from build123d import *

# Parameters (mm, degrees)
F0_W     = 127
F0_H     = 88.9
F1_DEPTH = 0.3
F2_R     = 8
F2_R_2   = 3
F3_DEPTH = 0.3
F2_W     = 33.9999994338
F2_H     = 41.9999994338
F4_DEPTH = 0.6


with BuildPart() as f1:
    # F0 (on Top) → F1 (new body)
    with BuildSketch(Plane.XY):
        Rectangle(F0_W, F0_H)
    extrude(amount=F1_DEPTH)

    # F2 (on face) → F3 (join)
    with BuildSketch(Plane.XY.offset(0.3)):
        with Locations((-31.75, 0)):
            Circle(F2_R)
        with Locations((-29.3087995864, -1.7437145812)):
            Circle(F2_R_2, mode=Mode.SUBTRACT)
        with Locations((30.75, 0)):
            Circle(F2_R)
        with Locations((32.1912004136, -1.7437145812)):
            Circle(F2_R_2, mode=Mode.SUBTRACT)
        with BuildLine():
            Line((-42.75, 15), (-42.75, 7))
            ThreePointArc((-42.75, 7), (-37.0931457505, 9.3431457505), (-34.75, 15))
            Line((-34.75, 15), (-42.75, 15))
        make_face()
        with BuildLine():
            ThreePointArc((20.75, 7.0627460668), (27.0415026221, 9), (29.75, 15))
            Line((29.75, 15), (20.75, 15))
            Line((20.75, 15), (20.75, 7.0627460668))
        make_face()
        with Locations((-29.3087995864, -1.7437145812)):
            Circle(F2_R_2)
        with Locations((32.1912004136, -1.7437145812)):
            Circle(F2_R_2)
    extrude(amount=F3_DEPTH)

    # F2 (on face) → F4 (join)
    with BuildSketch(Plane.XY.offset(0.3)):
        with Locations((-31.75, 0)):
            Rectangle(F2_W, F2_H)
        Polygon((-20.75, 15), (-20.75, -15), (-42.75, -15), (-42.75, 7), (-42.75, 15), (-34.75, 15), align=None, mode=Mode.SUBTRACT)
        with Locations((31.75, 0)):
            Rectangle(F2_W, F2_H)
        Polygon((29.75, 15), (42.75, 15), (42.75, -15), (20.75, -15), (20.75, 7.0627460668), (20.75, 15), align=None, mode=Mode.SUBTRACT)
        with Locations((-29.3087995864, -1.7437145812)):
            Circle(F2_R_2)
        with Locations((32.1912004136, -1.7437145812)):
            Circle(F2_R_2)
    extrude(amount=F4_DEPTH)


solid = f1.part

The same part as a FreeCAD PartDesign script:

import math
import FreeCAD as App
import Part
import Sketcher
from FreeCAD import Vector

doc = App.newDocument("Part")
params = doc.addObject("Spreadsheet::Sheet", "Params")
for row, (alias, value) in enumerate([
    ("sketch1_width", "127 mm"),
    ("sketch1_height", "88.9 mm"),
    ("pad1_length", "0.3 mm"),
    ("sketch2_diameter", "16 mm"),
    ("sketch2_width", "9 mm"),
    ("pad2_length", "0.3 mm"),
    ("sketch3_diameter", "6 mm"),
    ("sketch3_width", "33.999999 mm"),
    ("sketch3_width2", "22 mm"),
    ("sketch3_height", "41.999999 mm"),
    ("sketch3_height2", "30 mm"),
    ("pad3_length", "0.6 mm"),
], start=1):
    params.set(f"A{row}", alias)
    params.set(f"B{row}", "=" + value)
    params.setAlias(f"B{row}", alias)

body = doc.addObject("PartDesign::Body", "Body")

sketch1 = doc.addObject("Sketcher::SketchObject", "Sketch")
body.addObject(sketch1)
sketch1.AttachmentSupport = (doc.XY_Plane, [""])
sketch1.MapMode = "FlatFace"
sketch1.addGeometry(Part.LineSegment(Vector(-63.5, 44.45, 0), Vector(-63.5, -44.45, 0)), False)
sketch1.addGeometry(Part.LineSegment(Vector(-63.5, -44.45, 0), Vector(63.5, -44.45, 0)), False)
sketch1.addGeometry(Part.LineSegment(Vector(63.5, -44.45, 0), Vector(63.5, 44.45, 0)), False)
sketch1.addGeometry(Part.LineSegment(Vector(63.5, 44.45, 0), Vector(-63.5, 44.45, 0)), False)
sketch1.addConstraint(Sketcher.Constraint("Coincident", 0, 2, 1, 1))
sketch1.addConstraint(Sketcher.Constraint("Coincident", 1, 2, 2, 1))
sketch1.addConstraint(Sketcher.Constraint("Coincident", 2, 2, 3, 1))
sketch1.addConstraint(Sketcher.Constraint("Coincident", 3, 2, 0, 1))
sketch1.addConstraint(Sketcher.Constraint("Vertical", 0))
sketch1.addConstraint(Sketcher.Constraint("Horizontal", 1))
sketch1.addConstraint(Sketcher.Constraint("Vertical", 2))
sketch1.addConstraint(Sketcher.Constraint("Horizontal", 3))
sketch1.addConstraint(Sketcher.Constraint("Symmetric", 0, 2, 2, 2, -1, 1))
sketch1.addConstraint(Sketcher.Constraint("DistanceX", 1, 1, 1, 2, 127.0))
sketch1.addConstraint(Sketcher.Constraint("DistanceY", 0, 2, 0, 1, 88.9))
sketch1.setExpression("Constraints[9]", "Params.sketch1_width")
sketch1.setExpression("Constraints[10]", "Params.sketch1_height")
pad1 = doc.addObject("PartDesign::Pad", "Pad")
body.addObject(pad1)
pad1.Profile = sketch1
pad1.setExpression("Length", "Params.pad1_length")

sketch2 = doc.addObject("Sketcher::SketchObject", "Sketch001")
body.addObject(sketch2)
sketch2.AttachmentSupport = (doc.XY_Plane, [""])
sketch2.MapMode = "FlatFace"
sketch2.AttachmentOffset = App.Placement(Vector(0, 0, 0.3), App.Rotation())
sketch2.addGeometry(Part.Circle(Vector(-31.75, 0, 0), Vector(0, 0, 1), 8), False)
sketch2.addGeometry(Part.Circle(Vector(30.75, 0, 0), Vector(0, 0, 1), 8), False)
sketch2.addGeometry(Part.LineSegment(Vector(-42.75, 15, 0), Vector(-42.75, 7, 0)), False)
sketch2.addGeometry(Part.ArcOfCircle(Part.Circle(Vector(-42.75, 15, 0), Vector(0, 0, 1), 8), math.radians(-90), math.radians(0)), False)
sketch2.addGeometry(Part.LineSegment(Vector(-34.75, 15, 0), Vector(-42.75, 15, 0)), False)
sketch2.addGeometry(Part.ArcOfCircle(Part.Circle(Vector(21.75, 15, 0), Vector(0, 0, 1), 8), math.radians(-97.180756), math.radians(0)), False)
sketch2.addGeometry(Part.LineSegment(Vector(29.75, 15, 0), Vector(20.75, 15, 0)), False)
sketch2.addGeometry(Part.LineSegment(Vector(20.75, 15, 0), Vector(20.75, 7.062746, 0)), False)
sketch2.addConstraint(Sketcher.Constraint("Coincident", 2, 2, 3, 1))
sketch2.addConstraint(Sketcher.Constraint("Coincident", 3, 2, 4, 1))
sketch2.addConstraint(Sketcher.Constraint("Coincident", 4, 2, 2, 1))
sketch2.addConstraint(Sketcher.Constraint("Coincident", 5, 2, 6, 1))
sketch2.addConstraint(Sketcher.Constraint("Coincident", 6, 2, 7, 1))
sketch2.addConstraint(Sketcher.Constraint("Coincident", 7, 2, 5, 1))
sketch2.addConstraint(Sketcher.Constraint("Vertical", 2))
sketch2.addConstraint(Sketcher.Constraint("Horizontal", 4))
sketch2.addConstraint(Sketcher.Constraint("Horizontal", 6))
sketch2.addConstraint(Sketcher.Constraint("Vertical", 7))
sketch2.addConstraint(Sketcher.Constraint("Coincident", 4, 2, 3, 3))
sketch2.addConstraint(Sketcher.Constraint("Equal", 0, 1))
sketch2.addConstraint(Sketcher.Constraint("Equal", 1, 3))
sketch2.addConstraint(Sketcher.Constraint("Equal", 3, 5))
sketch2.addConstraint(Sketcher.Constraint("PointOnObject", 0, 3, -1))
sketch2.addConstraint(Sketcher.Constraint("PointOnObject", 1, 3, -1))
sketch2.addConstraint(Sketcher.Constraint("Horizontal", 3, 3, 5, 3))
sketch2.addConstraint(Sketcher.Constraint("Horizontal", 4, 2, 5, 2))
sketch2.addConstraint(Sketcher.Constraint("Diameter", 0, 16.0))
sketch2.addConstraint(Sketcher.Constraint("DistanceX", 6, 2, 6, 1, 9.0))
sketch2.addConstraint(Sketcher.Constraint("DistanceY", -1, 1, 3, 3, 15.0))
sketch2.addConstraint(Sketcher.Constraint("DistanceX", 3, 3, 0, 3, 11.0))
sketch2.addConstraint(Sketcher.Constraint("DistanceX", 5, 3, 1, 3, 9.0))
sketch2.addConstraint(Sketcher.Constraint("DistanceX", 0, 3, 1, 3, 62.5))
sketch2.addConstraint(Sketcher.Constraint("DistanceX", 0, 3, -1, 1, 31.75))
sketch2.setExpression("Constraints[18]", "Params.sketch2_diameter")
sketch2.setExpression("Constraints[19]", "Params.sketch2_width")
pad2 = doc.addObject("PartDesign::Pad", "Pad001")
body.addObject(pad2)
pad2.Profile = sketch2
pad2.setExpression("Length", "Params.pad2_length")

sketch3 = doc.addObject("Sketcher::SketchObject", "Sketch002")
body.addObject(sketch3)
sketch3.AttachmentSupport = (doc.XY_Plane, [""])
sketch3.MapMode = "FlatFace"
sketch3.AttachmentOffset = App.Placement(Vector(0, 0, 0.3), App.Rotation())
sketch3.addGeometry(Part.LineSegment(Vector(-48.75, 21, 0), Vector(-48.75, -21, 0)), False)
sketch3.addGeometry(Part.LineSegment(Vector(-48.75, -21, 0), Vector(-14.75, -21, 0)), False)
sketch3.addGeometry(Part.LineSegment(Vector(-14.75, -21, 0), Vector(-14.75, 21, 0)), False)
sketch3.addGeometry(Part.LineSegment(Vector(-14.75, 21, 0), Vector(-48.75, 21, 0)), False)
sketch3.addGeometry(Part.LineSegment(Vector(-42.75, 15, 0), Vector(-20.75, 15, 0)), False)
sketch3.addGeometry(Part.LineSegment(Vector(-20.75, 15, 0), Vector(-20.75, -15, 0)), False)
sketch3.addGeometry(Part.LineSegment(Vector(-20.75, -15, 0), Vector(-42.75, -15, 0)), False)
sketch3.addGeometry(Part.LineSegment(Vector(-42.75, -15, 0), Vector(-42.75, 15, 0)), False)
sketch3.addGeometry(Part.LineSegment(Vector(14.75, 21, 0), Vector(14.75, -21, 0)), False)
sketch3.addGeometry(Part.LineSegment(Vector(14.75, -21, 0), Vector(48.75, -21, 0)), False)
sketch3.addGeometry(Part.LineSegment(Vector(48.75, -21, 0), Vector(48.75, 21, 0)), False)
sketch3.addGeometry(Part.LineSegment(Vector(48.75, 21, 0), Vector(14.75, 21, 0)), False)
sketch3.addGeometry(Part.LineSegment(Vector(20.75, 15, 0), Vector(42.75, 15, 0)), False)
sketch3.addGeometry(Part.LineSegment(Vector(42.75, 15, 0), Vector(42.75, -15, 0)), False)
sketch3.addGeometry(Part.LineSegment(Vector(42.75, -15, 0), Vector(20.75, -15, 0)), False)
sketch3.addGeometry(Part.LineSegment(Vector(20.75, -15, 0), Vector(20.75, 15, 0)), False)
sketch3.addGeometry(Part.Circle(Vector(-29.3088, -1.743715, 0), Vector(0, 0, 1), 3), False)
sketch3.addGeometry(Part.Circle(Vector(32.1912, -1.743715, 0), Vector(0, 0, 1), 3), False)
sketch3.addConstraint(Sketcher.Constraint("Coincident", 0, 2, 1, 1))
sketch3.addConstraint(Sketcher.Constraint("Coincident", 1, 2, 2, 1))
sketch3.addConstraint(Sketcher.Constraint("Coincident", 2, 2, 3, 1))
sketch3.addConstraint(Sketcher.Constraint("Coincident", 3, 2, 0, 1))
sketch3.addConstraint(Sketcher.Constraint("Coincident", 4, 2, 5, 1))
sketch3.addConstraint(Sketcher.Constraint("Coincident", 5, 2, 6, 1))
sketch3.addConstraint(Sketcher.Constraint("Coincident", 6, 2, 7, 1))
sketch3.addConstraint(Sketcher.Constraint("Coincident", 7, 2, 4, 1))
sketch3.addConstraint(Sketcher.Constraint("Coincident", 8, 2, 9, 1))
sketch3.addConstraint(Sketcher.Constraint("Coincident", 9, 2, 10, 1))
sketch3.addConstraint(Sketcher.Constraint("Coincident", 10, 2, 11, 1))
sketch3.addConstraint(Sketcher.Constraint("Coincident", 11, 2, 8, 1))
sketch3.addConstraint(Sketcher.Constraint("Coincident", 12, 2, 13, 1))
sketch3.addConstraint(Sketcher.Constraint("Coincident", 13, 2, 14, 1))
sketch3.addConstraint(Sketcher.Constraint("Coincident", 14, 2, 15, 1))
sketch3.addConstraint(Sketcher.Constraint("Coincident", 15, 2, 12, 1))
sketch3.addConstraint(Sketcher.Constraint("Vertical", 0))
sketch3.addConstraint(Sketcher.Constraint("Horizontal", 1))
sketch3.addConstraint(Sketcher.Constraint("Vertical", 2))
sketch3.addConstraint(Sketcher.Constraint("Horizontal", 3))
sketch3.addConstraint(Sketcher.Constraint("Horizontal", 4))
sketch3.addConstraint(Sketcher.Constraint("Vertical", 5))
sketch3.addConstraint(Sketcher.Constraint("Horizontal", 6))
sketch3.addConstraint(Sketcher.Constraint("Vertical", 7))
sketch3.addConstraint(Sketcher.Constraint("Vertical", 8))
sketch3.addConstraint(Sketcher.Constraint("Horizontal", 9))
sketch3.addConstraint(Sketcher.Constraint("Vertical", 10))
sketch3.addConstraint(Sketcher.Constraint("Horizontal", 11))
sketch3.addConstraint(Sketcher.Constraint("Horizontal", 12))
sketch3.addConstraint(Sketcher.Constraint("Vertical", 13))
sketch3.addConstraint(Sketcher.Constraint("Horizontal", 14))
sketch3.addConstraint(Sketcher.Constraint("Vertical", 15))
sketch3.addConstraint(Sketcher.Constraint("Equal", 16, 17))
sketch3.addConstraint(Sketcher.Constraint("Symmetric", 2, 2, 8, 2, -1, 1))
sketch3.addConstraint(Sketcher.Constraint("Symmetric", 0, 2, 10, 2, -1, 1))
sketch3.addConstraint(Sketcher.Constraint("Symmetric", 6, 2, 12, 2, -1, 1))
sketch3.addConstraint(Sketcher.Constraint("Symmetric", 4, 2, 14, 2, -1, 1))
sketch3.addConstraint(Sketcher.Constraint("Horizontal", 16, 3, 17, 3))
sketch3.addConstraint(Sketcher.Constraint("Horizontal", 1, 2, 8, 2))
sketch3.addConstraint(Sketcher.Constraint("Horizontal", 7, 2, 12, 2))
sketch3.addConstraint(Sketcher.Constraint("Diameter", 16, 6.0))
sketch3.addConstraint(Sketcher.Constraint("DistanceX", 1, 1, 1, 2, 33.999999))
sketch3.addConstraint(Sketcher.Constraint("DistanceX", 4, 1, 4, 2, 22.0))
sketch3.addConstraint(Sketcher.Constraint("DistanceY", 0, 2, 0, 1, 41.999999))
sketch3.addConstraint(Sketcher.Constraint("DistanceY", 5, 2, 5, 1, 30.0))
sketch3.addConstraint(Sketcher.Constraint("DistanceX", 4, 2, 2, 2, 6.0))
sketch3.addConstraint(Sketcher.Constraint("DistanceX", 16, 3, 17, 3, 61.5))
sketch3.addConstraint(Sketcher.Constraint("DistanceX", 1, 2, 8, 2, 29.500001))
sketch3.addConstraint(Sketcher.Constraint("DistanceX", 16, 3, -1, 1, 29.3088))
sketch3.addConstraint(Sketcher.Constraint("DistanceY", 16, 3, -1, 1, 1.743715))
sketch3.setExpression("Constraints[40]", "Params.sketch3_diameter")
sketch3.setExpression("Constraints[41]", "Params.sketch3_width")
sketch3.setExpression("Constraints[42]", "Params.sketch3_width2")
sketch3.setExpression("Constraints[43]", "Params.sketch3_height")
sketch3.setExpression("Constraints[44]", "Params.sketch3_height2")
pad3 = doc.addObject("PartDesign::Pad", "Pad002")
body.addObject(pad3)
pad3.Profile = sketch3
pad3.setExpression("Length", "Params.pad3_length")

doc.recompute()
